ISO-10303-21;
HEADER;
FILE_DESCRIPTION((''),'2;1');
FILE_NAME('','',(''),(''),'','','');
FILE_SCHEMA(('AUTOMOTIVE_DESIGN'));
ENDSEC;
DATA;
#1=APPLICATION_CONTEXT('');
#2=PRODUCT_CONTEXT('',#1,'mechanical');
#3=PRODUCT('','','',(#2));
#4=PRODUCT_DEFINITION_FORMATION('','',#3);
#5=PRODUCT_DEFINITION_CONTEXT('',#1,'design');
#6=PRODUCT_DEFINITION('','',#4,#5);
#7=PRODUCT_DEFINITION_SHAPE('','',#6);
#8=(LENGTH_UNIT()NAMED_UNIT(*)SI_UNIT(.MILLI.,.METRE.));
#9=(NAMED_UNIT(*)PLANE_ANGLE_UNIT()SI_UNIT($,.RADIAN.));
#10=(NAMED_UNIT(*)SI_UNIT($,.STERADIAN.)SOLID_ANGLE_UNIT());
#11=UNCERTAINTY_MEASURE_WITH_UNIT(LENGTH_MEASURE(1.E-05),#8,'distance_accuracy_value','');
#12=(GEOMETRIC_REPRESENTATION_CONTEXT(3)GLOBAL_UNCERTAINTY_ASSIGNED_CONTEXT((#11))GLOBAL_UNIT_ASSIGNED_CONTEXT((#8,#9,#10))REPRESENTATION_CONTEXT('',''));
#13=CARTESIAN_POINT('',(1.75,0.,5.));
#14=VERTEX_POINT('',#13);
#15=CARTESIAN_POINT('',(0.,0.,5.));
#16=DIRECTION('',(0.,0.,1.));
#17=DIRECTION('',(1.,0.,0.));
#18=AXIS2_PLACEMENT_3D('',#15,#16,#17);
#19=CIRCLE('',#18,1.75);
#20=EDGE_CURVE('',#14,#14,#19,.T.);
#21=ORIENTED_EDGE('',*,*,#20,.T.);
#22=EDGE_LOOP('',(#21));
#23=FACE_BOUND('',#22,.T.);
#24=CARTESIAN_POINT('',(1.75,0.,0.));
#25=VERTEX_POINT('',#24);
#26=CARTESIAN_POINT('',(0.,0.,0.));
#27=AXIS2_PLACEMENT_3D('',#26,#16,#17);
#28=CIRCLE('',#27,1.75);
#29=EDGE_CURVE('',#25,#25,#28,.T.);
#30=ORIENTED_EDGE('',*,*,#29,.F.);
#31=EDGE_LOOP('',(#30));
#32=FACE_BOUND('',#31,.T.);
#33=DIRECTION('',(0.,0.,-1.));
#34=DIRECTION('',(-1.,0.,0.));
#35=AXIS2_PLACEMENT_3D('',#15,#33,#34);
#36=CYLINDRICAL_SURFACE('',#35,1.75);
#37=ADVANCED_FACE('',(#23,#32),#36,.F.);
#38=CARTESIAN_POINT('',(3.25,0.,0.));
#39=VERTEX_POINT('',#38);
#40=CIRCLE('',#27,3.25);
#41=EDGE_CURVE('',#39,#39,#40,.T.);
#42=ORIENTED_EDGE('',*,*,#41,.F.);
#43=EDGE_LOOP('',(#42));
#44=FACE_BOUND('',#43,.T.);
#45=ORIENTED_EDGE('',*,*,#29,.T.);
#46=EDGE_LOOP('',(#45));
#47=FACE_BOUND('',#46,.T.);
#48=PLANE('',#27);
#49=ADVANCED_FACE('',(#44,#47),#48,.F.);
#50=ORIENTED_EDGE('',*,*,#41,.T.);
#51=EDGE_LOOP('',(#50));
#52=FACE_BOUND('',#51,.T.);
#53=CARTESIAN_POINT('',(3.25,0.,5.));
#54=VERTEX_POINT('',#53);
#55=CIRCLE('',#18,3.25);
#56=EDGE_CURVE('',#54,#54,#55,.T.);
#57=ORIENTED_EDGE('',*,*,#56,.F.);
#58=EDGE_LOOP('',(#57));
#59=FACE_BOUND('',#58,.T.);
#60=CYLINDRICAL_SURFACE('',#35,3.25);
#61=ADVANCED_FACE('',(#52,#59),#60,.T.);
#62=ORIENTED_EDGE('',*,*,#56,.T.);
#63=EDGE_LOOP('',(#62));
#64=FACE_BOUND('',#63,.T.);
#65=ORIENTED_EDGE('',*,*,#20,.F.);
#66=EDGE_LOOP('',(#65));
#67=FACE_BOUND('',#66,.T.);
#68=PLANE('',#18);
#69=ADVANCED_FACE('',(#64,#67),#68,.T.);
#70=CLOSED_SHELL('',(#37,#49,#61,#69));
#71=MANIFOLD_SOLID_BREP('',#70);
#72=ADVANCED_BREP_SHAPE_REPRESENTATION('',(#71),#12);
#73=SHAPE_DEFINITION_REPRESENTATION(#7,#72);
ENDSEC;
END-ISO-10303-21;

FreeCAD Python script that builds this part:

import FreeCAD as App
import Part
import Sketcher
Q = App.Units.Quantity

doc = App.newDocument("Part")
body = doc.addObject("PartDesign::Body", "Body")

# Sketch on XY plane
sketch1 = body.newObject("Sketcher::SketchObject", "Sketch")
sketch1.AttachmentSupport = (doc.getObject("XY_Plane"), [""])
sketch1.MapMode = "FlatFace"
sketch1.addGeometry(Part.Circle(App.Vector(0, 0, 0), App.Vector(0, 0, 1), 3.2), False)
sketch1.addGeometry(Part.Circle(App.Vector(0, 0, 0), App.Vector(0, 0, 1), 1.8), False)
sketch1.addConstraint(Sketcher.Constraint("Coincident", 0, 3, -1, 1))
sketch1.addConstraint(Sketcher.Constraint("Coincident", 1, 3, -1, 1))
sketch1.addConstraint(Sketcher.Constraint("Diameter", 0, Q("6.5 mm")))
sketch1.addConstraint(Sketcher.Constraint("Diameter", 1, Q("3.5 mm")))
pad1 = body.newObject("PartDesign::Pad", "Pad")
pad1.Profile = sketch1
pad1.Length = 5

doc.recompute()
